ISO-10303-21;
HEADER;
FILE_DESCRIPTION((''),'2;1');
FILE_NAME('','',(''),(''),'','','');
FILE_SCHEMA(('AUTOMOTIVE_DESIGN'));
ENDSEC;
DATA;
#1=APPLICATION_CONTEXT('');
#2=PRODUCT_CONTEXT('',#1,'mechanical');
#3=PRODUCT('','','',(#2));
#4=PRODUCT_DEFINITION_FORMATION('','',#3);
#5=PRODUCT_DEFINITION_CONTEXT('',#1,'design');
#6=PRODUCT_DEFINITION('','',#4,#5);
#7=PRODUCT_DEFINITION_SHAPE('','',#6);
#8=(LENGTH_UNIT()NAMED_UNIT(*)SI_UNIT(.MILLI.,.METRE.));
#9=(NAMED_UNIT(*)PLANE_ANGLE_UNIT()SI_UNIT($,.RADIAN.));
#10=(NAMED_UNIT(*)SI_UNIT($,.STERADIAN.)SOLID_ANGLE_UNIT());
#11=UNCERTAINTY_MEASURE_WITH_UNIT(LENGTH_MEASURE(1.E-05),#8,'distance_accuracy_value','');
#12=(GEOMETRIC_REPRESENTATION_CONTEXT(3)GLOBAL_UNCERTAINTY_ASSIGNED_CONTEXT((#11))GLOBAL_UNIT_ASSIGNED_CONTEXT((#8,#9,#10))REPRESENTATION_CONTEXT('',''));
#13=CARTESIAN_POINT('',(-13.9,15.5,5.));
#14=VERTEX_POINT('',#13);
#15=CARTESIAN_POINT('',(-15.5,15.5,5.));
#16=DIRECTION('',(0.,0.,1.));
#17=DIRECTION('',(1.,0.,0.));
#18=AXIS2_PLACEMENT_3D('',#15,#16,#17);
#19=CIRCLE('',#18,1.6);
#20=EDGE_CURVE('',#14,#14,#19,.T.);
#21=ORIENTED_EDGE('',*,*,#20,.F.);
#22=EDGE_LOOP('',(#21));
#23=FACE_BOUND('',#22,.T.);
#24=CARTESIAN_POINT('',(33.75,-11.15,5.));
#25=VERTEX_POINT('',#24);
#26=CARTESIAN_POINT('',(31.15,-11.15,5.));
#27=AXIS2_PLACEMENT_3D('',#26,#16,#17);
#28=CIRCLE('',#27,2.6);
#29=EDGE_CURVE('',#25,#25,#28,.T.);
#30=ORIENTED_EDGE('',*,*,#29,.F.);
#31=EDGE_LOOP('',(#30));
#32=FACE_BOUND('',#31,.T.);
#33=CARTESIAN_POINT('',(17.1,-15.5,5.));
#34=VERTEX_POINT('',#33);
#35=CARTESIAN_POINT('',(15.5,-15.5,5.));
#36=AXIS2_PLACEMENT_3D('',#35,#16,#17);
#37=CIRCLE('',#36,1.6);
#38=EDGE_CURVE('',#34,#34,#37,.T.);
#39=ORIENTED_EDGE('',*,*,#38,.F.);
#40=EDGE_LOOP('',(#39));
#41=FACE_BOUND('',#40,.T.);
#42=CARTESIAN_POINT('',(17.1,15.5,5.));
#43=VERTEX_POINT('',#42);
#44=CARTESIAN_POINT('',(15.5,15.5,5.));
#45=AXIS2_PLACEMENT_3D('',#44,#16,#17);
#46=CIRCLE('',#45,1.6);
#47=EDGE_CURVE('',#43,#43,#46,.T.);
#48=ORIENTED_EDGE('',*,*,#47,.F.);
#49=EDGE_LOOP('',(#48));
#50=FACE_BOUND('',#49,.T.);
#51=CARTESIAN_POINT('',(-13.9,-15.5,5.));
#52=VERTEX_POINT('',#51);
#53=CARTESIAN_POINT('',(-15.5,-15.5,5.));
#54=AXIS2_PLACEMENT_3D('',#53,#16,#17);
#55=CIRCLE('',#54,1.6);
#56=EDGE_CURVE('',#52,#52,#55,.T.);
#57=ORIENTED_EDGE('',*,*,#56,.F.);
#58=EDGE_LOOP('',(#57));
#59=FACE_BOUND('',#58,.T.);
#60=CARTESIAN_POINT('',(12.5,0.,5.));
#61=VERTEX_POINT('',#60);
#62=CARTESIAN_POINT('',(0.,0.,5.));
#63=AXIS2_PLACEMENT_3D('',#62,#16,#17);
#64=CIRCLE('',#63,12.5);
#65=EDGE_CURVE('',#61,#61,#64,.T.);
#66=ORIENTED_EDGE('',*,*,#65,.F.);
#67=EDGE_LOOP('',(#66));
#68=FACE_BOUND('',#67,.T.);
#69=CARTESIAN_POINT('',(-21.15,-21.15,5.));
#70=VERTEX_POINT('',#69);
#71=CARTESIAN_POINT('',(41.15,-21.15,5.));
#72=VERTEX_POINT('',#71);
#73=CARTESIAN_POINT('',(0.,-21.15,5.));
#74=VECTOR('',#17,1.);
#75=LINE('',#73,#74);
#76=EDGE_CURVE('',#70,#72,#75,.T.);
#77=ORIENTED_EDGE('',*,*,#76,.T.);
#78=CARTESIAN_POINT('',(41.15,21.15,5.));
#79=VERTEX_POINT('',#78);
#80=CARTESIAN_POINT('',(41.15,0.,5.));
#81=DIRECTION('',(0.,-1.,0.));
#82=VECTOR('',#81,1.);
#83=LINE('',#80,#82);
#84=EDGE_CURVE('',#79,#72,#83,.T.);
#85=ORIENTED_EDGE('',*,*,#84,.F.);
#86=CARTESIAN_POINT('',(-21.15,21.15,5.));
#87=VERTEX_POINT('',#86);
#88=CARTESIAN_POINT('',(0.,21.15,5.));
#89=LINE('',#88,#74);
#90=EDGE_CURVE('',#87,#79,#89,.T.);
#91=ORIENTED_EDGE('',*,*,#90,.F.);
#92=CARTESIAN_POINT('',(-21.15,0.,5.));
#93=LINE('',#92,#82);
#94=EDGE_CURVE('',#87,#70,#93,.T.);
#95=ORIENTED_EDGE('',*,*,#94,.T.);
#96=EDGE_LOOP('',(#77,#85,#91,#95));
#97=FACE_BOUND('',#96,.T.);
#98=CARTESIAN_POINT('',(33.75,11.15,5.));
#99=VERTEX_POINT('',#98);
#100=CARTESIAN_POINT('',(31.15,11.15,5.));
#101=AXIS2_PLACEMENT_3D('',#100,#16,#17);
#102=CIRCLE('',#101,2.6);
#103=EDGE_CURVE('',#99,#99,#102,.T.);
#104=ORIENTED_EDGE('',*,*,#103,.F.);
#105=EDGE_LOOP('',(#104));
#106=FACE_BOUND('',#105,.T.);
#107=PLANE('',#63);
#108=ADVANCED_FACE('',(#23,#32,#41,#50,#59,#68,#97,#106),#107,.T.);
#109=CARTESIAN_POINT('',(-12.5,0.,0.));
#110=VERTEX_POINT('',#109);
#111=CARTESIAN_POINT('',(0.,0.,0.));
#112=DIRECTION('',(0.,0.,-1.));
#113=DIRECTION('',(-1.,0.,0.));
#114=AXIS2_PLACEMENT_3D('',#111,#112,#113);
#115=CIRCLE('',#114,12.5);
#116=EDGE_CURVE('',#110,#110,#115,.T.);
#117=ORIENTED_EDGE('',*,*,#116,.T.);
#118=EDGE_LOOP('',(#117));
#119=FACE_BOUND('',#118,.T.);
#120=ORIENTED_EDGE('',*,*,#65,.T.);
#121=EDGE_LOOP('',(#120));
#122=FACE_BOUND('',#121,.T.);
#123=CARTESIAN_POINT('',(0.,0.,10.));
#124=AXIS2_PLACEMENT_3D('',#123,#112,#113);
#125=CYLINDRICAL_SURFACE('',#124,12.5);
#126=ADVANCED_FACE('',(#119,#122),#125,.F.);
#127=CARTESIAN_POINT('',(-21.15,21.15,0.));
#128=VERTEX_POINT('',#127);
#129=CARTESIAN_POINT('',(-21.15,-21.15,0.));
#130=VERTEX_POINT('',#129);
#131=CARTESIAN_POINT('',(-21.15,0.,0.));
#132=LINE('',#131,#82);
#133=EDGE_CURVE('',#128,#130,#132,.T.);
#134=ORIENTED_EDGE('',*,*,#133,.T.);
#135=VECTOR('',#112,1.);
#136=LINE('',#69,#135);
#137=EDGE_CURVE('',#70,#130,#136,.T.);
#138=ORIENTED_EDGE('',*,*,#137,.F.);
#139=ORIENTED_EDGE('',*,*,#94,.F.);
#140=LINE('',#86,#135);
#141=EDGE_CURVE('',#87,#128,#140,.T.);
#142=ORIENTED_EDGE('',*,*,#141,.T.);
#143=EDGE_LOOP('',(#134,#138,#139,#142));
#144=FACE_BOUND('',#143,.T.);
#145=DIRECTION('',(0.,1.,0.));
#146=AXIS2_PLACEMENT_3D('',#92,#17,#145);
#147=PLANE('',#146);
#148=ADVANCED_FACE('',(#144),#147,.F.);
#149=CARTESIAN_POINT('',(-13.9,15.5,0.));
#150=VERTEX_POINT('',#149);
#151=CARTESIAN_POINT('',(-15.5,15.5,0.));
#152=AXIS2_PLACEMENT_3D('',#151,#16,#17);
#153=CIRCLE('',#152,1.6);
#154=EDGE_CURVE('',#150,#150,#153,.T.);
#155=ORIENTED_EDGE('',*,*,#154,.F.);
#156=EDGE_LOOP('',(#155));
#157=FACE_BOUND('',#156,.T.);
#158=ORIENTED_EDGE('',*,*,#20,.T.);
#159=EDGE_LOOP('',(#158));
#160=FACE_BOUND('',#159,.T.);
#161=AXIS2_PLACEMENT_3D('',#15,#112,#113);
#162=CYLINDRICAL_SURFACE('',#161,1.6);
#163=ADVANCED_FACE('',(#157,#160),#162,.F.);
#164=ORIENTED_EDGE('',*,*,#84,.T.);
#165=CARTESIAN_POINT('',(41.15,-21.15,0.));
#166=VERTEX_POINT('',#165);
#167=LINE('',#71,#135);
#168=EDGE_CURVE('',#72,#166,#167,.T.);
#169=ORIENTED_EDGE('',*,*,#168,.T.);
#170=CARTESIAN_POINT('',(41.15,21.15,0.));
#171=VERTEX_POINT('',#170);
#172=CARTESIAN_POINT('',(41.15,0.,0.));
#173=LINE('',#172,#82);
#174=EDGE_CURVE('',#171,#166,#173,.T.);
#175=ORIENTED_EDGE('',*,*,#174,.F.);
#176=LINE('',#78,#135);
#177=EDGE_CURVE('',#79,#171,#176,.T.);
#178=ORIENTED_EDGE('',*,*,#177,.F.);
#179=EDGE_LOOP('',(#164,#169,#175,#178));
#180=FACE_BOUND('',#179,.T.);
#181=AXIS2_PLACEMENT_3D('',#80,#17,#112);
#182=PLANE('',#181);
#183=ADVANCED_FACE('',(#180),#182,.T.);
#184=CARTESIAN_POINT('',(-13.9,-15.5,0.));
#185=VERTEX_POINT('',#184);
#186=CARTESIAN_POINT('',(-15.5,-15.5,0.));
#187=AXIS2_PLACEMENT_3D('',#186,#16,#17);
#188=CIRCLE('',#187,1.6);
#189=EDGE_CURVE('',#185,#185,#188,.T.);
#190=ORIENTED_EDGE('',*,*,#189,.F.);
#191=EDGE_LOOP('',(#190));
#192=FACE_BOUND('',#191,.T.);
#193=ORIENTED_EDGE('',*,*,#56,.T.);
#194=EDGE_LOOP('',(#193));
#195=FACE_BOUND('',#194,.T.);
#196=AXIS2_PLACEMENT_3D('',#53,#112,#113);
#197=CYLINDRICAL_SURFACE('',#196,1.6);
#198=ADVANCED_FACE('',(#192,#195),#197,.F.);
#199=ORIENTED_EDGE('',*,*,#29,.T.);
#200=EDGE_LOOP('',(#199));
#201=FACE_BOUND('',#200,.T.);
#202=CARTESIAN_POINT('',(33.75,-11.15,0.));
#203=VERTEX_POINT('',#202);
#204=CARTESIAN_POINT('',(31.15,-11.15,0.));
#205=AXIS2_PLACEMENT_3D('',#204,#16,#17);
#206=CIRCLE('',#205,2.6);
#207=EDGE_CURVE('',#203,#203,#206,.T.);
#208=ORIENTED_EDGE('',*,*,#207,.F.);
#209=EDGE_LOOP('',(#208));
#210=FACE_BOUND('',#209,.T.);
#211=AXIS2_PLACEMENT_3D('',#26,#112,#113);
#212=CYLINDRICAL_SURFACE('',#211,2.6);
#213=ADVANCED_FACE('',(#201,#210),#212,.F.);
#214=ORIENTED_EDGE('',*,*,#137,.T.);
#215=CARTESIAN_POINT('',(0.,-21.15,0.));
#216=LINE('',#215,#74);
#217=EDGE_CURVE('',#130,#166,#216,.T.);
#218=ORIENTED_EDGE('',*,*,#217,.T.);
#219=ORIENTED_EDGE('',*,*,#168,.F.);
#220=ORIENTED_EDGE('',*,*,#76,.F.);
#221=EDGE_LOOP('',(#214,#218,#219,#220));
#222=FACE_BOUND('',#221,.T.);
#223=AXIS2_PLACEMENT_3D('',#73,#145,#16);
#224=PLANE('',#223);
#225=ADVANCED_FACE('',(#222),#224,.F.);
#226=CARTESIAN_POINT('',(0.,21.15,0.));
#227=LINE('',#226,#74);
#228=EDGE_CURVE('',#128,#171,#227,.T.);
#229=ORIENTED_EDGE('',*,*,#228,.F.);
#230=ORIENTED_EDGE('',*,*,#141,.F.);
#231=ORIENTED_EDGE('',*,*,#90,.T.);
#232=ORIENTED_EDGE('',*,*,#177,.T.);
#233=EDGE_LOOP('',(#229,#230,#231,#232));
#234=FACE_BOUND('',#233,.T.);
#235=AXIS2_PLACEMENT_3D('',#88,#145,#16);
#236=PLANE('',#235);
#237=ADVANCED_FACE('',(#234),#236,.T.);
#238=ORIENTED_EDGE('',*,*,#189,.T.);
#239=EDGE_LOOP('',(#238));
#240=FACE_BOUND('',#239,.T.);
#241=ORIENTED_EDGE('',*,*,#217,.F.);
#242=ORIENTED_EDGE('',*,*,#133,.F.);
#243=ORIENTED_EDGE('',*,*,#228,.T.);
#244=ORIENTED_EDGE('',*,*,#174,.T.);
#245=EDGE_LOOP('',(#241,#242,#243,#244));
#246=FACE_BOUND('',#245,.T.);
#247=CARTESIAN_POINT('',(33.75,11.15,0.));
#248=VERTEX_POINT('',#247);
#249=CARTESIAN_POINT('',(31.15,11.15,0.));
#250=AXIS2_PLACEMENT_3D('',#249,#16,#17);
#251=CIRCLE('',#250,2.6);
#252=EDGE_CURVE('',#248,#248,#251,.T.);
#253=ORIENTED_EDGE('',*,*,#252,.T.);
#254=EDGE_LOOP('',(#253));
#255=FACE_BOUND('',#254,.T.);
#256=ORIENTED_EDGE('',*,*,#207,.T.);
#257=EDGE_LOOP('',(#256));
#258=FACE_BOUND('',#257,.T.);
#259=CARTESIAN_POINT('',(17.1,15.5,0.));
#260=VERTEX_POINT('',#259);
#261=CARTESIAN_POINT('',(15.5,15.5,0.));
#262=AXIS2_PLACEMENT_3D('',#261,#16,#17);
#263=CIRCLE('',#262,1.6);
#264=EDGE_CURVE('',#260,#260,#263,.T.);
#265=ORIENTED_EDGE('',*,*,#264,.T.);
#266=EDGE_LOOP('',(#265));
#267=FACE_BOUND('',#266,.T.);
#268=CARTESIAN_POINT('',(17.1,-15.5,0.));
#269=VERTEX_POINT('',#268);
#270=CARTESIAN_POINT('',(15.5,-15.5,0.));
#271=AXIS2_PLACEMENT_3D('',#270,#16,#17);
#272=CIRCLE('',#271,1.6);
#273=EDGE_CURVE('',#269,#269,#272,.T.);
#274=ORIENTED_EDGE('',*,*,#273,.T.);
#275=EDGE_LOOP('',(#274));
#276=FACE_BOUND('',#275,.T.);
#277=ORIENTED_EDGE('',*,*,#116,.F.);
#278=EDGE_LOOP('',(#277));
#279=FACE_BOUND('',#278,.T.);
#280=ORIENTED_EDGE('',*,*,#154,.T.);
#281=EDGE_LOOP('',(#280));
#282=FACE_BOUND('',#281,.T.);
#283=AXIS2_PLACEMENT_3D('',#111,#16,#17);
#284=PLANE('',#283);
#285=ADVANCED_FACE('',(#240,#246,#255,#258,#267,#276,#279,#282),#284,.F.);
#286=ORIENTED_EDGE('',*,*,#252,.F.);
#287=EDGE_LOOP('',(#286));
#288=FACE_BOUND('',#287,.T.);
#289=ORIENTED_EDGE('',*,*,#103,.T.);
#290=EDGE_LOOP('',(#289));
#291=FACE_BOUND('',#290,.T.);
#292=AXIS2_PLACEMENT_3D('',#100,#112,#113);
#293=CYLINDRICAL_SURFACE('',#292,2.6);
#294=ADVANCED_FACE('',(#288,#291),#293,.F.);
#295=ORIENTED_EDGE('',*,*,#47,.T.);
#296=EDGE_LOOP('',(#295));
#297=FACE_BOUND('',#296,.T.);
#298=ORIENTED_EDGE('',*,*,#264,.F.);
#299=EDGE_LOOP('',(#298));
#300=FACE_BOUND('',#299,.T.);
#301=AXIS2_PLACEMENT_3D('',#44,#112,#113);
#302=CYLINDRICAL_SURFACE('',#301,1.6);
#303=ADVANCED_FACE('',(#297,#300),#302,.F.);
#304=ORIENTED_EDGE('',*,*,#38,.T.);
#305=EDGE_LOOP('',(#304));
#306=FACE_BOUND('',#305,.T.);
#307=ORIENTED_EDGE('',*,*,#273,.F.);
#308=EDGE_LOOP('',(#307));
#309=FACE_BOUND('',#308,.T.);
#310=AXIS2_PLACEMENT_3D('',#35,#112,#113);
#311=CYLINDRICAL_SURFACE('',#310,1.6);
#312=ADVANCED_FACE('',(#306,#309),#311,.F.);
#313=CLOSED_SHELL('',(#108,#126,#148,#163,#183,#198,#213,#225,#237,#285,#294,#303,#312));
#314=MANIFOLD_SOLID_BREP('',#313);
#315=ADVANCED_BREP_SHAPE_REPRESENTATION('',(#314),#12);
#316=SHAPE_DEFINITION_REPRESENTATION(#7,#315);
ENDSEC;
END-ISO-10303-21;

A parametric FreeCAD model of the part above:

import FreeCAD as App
import Part
import Sketcher
from FreeCAD import Vector


def add_polygon(sketch, points):
    """Adds a closed chain of lines whose ends are joined by coincident constraints."""
    first, n = sketch.GeometryCount, len(points)
    for a, b in zip(points, points[1:] + points[:1]):
        sketch.addGeometry(Part.LineSegment(App.Vector(*a, 0), App.Vector(*b, 0)), False)
    for i in range(n):
        sketch.addConstraint(Sketcher.Constraint("Coincident", first + i, 2, first + (i + 1) % n, 1))

doc = App.newDocument("Part")
params = doc.addObject("Spreadsheet::Sheet", "Params")
for row, (alias, value) in enumerate([
    ("sketch1_diameter", "3.2 mm"),
    ("sketch1_diameter2", "5.2 mm"),
    ("sketch1_width", "62.3 mm"),
    ("sketch1_height", "42.3 mm"),
    ("pad1_length", "5 mm"),
    ("sketch2_diameter", "25 mm"),
    ("pocket1_length", "10 mm"),
], start=1):
    params.set(f"A{row}", alias)
    params.set(f"B{row}", "=" + value)
    params.setAlias(f"B{row}", alias)

body = doc.addObject("PartDesign::Body", "Body")

# Sketch on XY plane
sketch1 = body.newObject("Sketcher::SketchObject", "Sketch")
sketch1.AttachmentSupport = (doc.getObject("XY_Plane"), [""])
sketch1.MapMode = "FlatFace"
add_polygon(sketch1, [(-21.1, 21.1), (-21.1, -21.1), (41.1, -21.1), (41.1, 21.1)])  # lines 0-3
sketch1.addGeometry(Part.Circle(Vector(-15.5, -15.5, 0), Vector(0, 0, 1), 1.6), False)  # 4
sketch1.addGeometry(Part.Circle(Vector(15.5, -15.5, 0), Vector(0, 0, 1), 1.6), False)  # 5
sketch1.addGeometry(Part.Circle(Vector(31.1, -11.2, 0), Vector(0, 0, 1), 2.6), False)  # 6
sketch1.addGeometry(Part.Circle(Vector(-15.5, 15.5, 0), Vector(0, 0, 1), 1.6), False)  # 7
sketch1.addGeometry(Part.Circle(Vector(15.5, 15.5, 0), Vector(0, 0, 1), 1.6), False)  # 8
sketch1.addGeometry(Part.Circle(Vector(31.1, 11.2, 0), Vector(0, 0, 1), 2.6), False)  # 9
sketch1.addConstraint([
    Sketcher.Constraint("Vertical", 0),
    Sketcher.Constraint("Horizontal", 1),
    Sketcher.Constraint("Vertical", 2),
    Sketcher.Constraint("Horizontal", 3),
    Sketcher.Constraint("Equal", 4, 5),
    Sketcher.Constraint("Equal", 5, 7),
    Sketcher.Constraint("Equal", 7, 8),
    Sketcher.Constraint("Equal", 6, 9),
    Sketcher.Constraint("Symmetric", 5, 3, 7, 3, -1, 1),
    Sketcher.Constraint("Symmetric", 4, 3, 8, 3, -1, 1),
    Sketcher.Constraint("Symmetric", 4, 3, 5, 3, -2),
    Sketcher.Constraint("Symmetric", 6, 3, 9, 3, -1),
    Sketcher.Constraint("Diameter", 4, 3.2),
    Sketcher.Constraint("Diameter", 6, 5.2),
    Sketcher.Constraint("DistanceX", 1, 1, 1, 2, 62.3),
    Sketcher.Constraint("DistanceY", 0, 2, 0, 1, 42.3),
    Sketcher.Constraint("DistanceX", 4, 3, 5, 3, 31.0),
    Sketcher.Constraint("DistanceY", 4, 3, 7, 3, 31.0),
    Sketcher.Constraint("DistanceY", 0, 2, 6, 3, 10.0),
    Sketcher.Constraint("DistanceX", 6, 3, 1, 2, 10.0),
    Sketcher.Constraint("DistanceY", 9, 3, 2, 2, 10.0),
    Sketcher.Constraint("DistanceX", -1, 1, 6, 3, 31.15),
])
sketch1.setExpression("Constraints[16]", "Params.sketch1_diameter")
sketch1.setExpression("Constraints[17]", "Params.sketch1_diameter2")
sketch1.setExpression("Constraints[18]", "Params.sketch1_width")
sketch1.setExpression("Constraints[19]", "Params.sketch1_height")
pad1 = body.newObject("PartDesign::Pad", "Pad")
pad1.Profile = sketch1
pad1.setExpression("Length", "Params.pad1_length")

# Sketch on XY plane
sketch2 = body.newObject("Sketcher::SketchObject", "Sketch001")
sketch2.AttachmentSupport = (doc.getObject("XY_Plane"), [""])
sketch2.MapMode = "FlatFace"
sketch2.addGeometry(Part.Circle(Vector(0, 0, 0), Vector(0, 0, 1), 12), False)
sketch2.addConstraint([
    Sketcher.Constraint("Coincident", 0, 3, -1, 1),
    Sketcher.Constraint("Diameter", 0, 25.0),
])
sketch2.setExpression("Constraints[1]", "Params.sketch2_diameter")
pocket1 = body.newObject("PartDesign::Pocket", "Pocket")
pocket1.Profile = sketch2
pocket1.setExpression("Length", "Params.pocket1_length")
pocket1.Reversed = True

doc.recompute()
